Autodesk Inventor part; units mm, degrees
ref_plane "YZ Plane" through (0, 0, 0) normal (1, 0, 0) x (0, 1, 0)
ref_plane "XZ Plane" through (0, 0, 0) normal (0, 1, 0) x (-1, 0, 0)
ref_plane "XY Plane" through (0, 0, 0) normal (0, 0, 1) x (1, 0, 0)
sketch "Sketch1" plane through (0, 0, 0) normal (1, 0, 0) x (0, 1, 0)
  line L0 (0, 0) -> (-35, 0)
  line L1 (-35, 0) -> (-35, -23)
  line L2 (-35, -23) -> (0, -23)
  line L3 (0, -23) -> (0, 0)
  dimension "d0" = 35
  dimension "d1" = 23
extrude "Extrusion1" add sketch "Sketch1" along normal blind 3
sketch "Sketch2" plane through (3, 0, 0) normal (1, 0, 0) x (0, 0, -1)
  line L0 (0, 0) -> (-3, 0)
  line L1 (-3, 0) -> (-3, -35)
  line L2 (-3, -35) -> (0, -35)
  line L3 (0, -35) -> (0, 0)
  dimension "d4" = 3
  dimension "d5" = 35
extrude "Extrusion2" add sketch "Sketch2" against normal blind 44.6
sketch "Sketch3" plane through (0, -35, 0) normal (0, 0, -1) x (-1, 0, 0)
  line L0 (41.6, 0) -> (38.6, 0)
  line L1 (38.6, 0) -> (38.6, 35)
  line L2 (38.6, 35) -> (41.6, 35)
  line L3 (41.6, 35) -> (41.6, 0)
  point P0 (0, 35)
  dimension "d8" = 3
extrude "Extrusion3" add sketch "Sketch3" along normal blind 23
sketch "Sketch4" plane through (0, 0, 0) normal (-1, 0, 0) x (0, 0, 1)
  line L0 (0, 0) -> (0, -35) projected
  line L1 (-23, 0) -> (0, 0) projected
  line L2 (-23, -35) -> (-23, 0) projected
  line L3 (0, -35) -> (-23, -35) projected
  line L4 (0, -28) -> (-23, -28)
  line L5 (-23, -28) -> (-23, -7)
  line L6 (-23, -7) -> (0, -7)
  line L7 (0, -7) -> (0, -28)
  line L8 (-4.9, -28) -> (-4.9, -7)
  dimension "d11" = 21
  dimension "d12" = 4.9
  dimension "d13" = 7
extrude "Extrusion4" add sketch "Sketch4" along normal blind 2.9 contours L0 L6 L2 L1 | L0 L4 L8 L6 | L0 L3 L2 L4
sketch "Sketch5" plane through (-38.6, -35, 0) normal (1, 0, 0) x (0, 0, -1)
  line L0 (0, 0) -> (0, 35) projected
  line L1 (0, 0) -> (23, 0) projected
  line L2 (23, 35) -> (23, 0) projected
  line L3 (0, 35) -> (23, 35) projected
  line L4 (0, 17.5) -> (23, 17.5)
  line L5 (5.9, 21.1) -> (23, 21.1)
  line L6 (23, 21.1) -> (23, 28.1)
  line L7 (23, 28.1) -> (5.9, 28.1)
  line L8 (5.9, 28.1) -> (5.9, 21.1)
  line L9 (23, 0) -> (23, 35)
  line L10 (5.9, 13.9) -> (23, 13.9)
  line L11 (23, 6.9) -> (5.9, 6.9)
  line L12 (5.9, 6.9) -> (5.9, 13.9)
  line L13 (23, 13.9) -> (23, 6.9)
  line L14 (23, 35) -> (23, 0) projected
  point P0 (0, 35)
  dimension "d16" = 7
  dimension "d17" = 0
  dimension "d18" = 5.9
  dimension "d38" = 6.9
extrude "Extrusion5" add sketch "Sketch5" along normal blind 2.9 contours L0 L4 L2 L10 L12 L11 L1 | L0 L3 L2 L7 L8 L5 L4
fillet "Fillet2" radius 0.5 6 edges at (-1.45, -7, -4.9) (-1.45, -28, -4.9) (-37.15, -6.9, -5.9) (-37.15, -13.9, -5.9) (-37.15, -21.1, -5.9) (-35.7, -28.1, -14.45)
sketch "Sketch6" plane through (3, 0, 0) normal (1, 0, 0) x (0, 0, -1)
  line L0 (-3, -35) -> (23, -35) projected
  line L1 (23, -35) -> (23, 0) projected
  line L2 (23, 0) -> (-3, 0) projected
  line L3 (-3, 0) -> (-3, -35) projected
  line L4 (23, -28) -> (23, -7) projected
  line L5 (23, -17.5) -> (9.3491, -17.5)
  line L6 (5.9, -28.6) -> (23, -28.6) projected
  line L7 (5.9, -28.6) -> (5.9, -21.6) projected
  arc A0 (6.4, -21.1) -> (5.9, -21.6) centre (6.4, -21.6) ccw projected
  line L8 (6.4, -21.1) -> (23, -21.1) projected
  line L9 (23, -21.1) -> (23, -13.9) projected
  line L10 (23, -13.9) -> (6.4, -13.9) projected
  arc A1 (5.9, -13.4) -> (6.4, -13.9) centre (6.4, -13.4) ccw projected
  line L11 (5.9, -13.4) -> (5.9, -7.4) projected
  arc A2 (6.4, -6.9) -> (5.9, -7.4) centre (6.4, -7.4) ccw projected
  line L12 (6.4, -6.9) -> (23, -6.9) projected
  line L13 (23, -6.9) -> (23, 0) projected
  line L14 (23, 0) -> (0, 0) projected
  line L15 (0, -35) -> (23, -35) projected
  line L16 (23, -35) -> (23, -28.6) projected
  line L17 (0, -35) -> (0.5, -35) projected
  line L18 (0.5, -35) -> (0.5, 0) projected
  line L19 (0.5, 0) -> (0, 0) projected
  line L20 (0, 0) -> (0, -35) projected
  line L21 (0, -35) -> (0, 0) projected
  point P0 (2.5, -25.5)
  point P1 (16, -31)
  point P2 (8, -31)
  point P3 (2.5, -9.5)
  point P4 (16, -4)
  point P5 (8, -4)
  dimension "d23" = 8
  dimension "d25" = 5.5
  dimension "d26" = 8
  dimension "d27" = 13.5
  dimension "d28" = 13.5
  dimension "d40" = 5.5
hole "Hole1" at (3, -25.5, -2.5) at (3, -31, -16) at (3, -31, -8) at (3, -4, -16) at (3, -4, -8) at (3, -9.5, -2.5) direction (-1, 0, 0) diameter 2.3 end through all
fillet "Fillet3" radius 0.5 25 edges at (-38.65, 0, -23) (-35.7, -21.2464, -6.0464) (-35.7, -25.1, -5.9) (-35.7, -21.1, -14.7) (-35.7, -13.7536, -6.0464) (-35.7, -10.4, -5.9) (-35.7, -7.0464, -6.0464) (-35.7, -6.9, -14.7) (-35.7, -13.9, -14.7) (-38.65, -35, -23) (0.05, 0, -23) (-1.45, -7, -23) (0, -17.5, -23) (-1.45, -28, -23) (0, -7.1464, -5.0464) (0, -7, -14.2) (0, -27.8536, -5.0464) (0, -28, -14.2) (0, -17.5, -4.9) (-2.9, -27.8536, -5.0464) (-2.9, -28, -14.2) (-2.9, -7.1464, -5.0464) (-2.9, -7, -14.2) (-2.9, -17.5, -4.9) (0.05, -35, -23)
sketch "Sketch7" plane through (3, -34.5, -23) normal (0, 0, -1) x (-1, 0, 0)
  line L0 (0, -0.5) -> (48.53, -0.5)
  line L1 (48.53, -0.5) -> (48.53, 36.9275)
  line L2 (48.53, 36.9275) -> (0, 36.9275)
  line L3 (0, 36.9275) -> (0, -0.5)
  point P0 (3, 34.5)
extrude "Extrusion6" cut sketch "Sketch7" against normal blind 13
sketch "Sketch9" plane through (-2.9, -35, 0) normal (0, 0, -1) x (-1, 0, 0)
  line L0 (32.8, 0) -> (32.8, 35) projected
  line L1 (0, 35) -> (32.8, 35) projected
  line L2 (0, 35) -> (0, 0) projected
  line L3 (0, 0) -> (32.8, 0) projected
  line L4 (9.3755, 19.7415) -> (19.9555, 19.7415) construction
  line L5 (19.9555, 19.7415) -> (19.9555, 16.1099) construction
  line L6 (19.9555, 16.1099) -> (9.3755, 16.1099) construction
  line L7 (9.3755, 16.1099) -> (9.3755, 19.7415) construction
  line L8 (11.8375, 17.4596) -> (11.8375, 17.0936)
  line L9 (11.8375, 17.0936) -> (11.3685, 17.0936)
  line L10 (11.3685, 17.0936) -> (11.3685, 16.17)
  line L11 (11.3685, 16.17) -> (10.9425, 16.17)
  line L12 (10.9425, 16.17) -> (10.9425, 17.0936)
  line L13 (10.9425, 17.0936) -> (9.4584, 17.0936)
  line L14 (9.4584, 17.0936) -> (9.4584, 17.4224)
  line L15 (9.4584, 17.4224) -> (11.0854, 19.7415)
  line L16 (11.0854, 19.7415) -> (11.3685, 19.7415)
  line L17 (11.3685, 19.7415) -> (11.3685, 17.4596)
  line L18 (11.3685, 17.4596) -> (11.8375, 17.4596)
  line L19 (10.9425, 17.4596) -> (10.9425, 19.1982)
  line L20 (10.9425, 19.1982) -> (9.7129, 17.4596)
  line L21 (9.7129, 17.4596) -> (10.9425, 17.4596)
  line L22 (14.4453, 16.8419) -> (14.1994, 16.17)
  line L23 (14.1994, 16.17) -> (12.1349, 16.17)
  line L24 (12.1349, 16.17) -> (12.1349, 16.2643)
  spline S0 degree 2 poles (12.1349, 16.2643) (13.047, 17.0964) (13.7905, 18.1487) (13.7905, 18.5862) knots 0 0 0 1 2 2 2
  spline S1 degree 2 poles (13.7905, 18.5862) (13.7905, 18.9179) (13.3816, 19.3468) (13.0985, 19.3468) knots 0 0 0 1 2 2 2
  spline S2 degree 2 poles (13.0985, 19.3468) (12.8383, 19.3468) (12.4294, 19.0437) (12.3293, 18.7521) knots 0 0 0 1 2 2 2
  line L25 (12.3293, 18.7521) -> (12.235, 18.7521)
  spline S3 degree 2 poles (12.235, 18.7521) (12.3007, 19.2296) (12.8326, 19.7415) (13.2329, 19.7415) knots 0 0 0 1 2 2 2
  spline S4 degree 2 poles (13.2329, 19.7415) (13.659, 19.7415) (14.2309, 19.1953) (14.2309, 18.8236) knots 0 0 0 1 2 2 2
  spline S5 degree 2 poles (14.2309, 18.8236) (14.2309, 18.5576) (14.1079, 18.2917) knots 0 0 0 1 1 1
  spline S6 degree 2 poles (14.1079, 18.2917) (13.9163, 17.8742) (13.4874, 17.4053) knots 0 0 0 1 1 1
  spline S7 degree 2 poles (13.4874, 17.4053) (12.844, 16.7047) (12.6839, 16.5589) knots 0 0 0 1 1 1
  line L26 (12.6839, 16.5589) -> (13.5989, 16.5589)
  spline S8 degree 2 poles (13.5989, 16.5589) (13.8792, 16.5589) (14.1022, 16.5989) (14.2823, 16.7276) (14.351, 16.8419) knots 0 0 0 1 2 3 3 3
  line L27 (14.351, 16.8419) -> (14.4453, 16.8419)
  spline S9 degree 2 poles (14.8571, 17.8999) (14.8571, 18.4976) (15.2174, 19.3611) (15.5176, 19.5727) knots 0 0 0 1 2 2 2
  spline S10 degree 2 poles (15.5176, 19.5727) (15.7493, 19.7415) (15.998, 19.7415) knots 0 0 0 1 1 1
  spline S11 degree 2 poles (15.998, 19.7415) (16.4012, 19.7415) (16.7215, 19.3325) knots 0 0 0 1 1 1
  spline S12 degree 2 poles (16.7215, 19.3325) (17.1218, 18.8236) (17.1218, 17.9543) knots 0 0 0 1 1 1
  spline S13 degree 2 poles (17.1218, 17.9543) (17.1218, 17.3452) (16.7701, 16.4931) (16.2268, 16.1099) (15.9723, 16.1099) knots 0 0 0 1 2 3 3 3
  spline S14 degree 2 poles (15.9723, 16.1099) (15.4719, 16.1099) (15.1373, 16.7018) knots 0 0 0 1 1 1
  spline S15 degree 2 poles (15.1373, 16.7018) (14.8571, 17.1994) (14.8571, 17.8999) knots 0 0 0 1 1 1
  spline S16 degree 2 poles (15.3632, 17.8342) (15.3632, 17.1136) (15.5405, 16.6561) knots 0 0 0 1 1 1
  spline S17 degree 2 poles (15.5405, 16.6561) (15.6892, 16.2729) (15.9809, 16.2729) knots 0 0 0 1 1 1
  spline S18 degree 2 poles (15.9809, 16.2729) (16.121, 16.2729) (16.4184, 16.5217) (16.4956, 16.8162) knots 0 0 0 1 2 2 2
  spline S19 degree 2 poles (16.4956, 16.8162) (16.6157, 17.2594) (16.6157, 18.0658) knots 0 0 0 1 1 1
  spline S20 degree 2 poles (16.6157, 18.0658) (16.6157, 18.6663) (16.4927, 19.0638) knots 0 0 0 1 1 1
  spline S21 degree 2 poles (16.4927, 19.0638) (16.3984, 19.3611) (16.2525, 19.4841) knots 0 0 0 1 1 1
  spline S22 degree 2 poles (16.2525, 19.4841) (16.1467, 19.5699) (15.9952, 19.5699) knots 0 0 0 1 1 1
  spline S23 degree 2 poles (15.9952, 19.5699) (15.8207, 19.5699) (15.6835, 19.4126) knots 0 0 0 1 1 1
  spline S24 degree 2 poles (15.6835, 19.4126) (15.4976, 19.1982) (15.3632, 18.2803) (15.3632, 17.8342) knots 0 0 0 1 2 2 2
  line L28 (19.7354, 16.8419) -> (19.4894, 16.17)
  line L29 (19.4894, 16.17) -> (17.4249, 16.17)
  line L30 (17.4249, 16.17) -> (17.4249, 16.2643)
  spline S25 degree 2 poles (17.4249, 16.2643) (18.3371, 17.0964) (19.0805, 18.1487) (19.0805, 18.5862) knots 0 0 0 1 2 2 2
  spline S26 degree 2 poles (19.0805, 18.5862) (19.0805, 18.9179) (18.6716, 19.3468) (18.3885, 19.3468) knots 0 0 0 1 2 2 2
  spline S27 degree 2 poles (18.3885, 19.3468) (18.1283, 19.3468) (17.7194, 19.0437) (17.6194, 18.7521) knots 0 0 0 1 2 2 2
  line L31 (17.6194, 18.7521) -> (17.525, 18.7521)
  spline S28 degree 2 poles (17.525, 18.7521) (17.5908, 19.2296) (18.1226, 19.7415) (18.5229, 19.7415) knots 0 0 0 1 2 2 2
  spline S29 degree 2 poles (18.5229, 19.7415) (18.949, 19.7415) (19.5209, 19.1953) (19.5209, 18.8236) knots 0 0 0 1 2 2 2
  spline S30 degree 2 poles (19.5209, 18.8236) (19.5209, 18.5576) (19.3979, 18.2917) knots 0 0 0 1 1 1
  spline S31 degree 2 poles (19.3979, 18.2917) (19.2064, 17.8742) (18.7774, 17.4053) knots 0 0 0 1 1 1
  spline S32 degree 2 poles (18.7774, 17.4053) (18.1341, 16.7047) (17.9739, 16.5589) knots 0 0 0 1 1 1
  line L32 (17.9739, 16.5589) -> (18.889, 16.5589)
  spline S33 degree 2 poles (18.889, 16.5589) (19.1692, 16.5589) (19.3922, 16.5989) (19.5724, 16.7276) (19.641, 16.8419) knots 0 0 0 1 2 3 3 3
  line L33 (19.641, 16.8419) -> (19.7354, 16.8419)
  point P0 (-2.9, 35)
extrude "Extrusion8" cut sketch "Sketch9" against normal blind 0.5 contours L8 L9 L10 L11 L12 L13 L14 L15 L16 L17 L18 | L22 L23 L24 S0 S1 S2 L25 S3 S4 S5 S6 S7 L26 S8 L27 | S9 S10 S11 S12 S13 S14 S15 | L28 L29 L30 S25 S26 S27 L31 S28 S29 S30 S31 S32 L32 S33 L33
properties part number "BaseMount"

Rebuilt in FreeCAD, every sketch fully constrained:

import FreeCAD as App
import Part
import Sketcher

V = App.Vector


def edges_at(feature, points):
    """Names of the edges that pass closest to the given points."""
    edges = feature.Shape.Edges
    near = lambda p: min(range(len(edges)), key=lambda i: edges[i].distToShape(Part.Vertex(*p))[0])
    return sorted({f"Edge{near(p) + 1}" for p in points})


def add_polygon(sketch, points):
    """Adds a closed chain of lines whose ends are joined by coincident constraints."""
    first, n = sketch.GeometryCount, len(points)
    for a, b in zip(points, points[1:] + points[:1]):
        sketch.addGeometry(Part.LineSegment(App.Vector(*a, 0), App.Vector(*b, 0)), False)
    for i in range(n):
        sketch.addConstraint(Sketcher.Constraint("Coincident", first + i, 2, first + (i + 1) % n, 1))

doc = App.newDocument("Part")
body = doc.addObject("PartDesign::Body", "Body")

# Sketch on YZ plane
sketch1 = doc.addObject("Sketcher::SketchObject", "Sketch")
body.addObject(sketch1)
sketch1.AttachmentSupport = (doc.YZ_Plane, [""])
sketch1.MapMode = "FlatFace"
add_polygon(sketch1, [(0, -23), (0, 0), (-35, 0), (-35, -23)])  # lines 0-3
sketch1.addConstraint([
    Sketcher.Constraint("Vertical", 0),
    Sketcher.Constraint("Horizontal", 1),
    Sketcher.Constraint("Vertical", 2),
    Sketcher.Constraint("Horizontal", 3),
    Sketcher.Constraint("Coincident", 0, 2, -1, 1),
    Sketcher.Constraint("DistanceX", 1, 2, 1, 1, 35.0),
    Sketcher.Constraint("DistanceY", 0, 1, 0, 2, 23.0),
])
pad1 = doc.addObject("PartDesign::Pad", "Pad")
body.addObject(pad1)
pad1.Profile = sketch1
pad1.Length = 3

# Sketch on YZ plane
sketch2 = doc.addObject("Sketcher::SketchObject", "Sketch001")
body.addObject(sketch2)
sketch2.AttachmentSupport = (doc.YZ_Plane, [""])
sketch2.MapMode = "FlatFace"
sketch2.AttachmentOffset = App.Placement(V(0, 0, 3), App.Rotation())
add_polygon(sketch2, [(-35, 0), (0, 0), (0, 3), (-35, 3)])  # lines 0-3
sketch2.addConstraint([
    Sketcher.Constraint("Horizontal", 0),
    Sketcher.Constraint("Vertical", 1),
    Sketcher.Constraint("Horizontal", 2),
    Sketcher.Constraint("Vertical", 3),
    Sketcher.Constraint("Coincident", 0, 2, -1, 1),
    Sketcher.Constraint("DistanceX", 0, 1, 0, 2, 35.0),
    Sketcher.Constraint("DistanceY", 1, 1, 1, 2, 3.0),
])
pad2 = doc.addObject("PartDesign::Pad", "Pad001")
body.addObject(pad2)
pad2.Profile = sketch2
pad2.Length = 44.6
pad2.Reversed = True

# Sketch on XY plane
sketch3 = doc.addObject("Sketcher::SketchObject", "Sketch002")
body.addObject(sketch3)
sketch3.AttachmentSupport = (doc.XY_Plane, [""])
sketch3.MapMode = "FlatFace"
add_polygon(sketch3, [(-38.6, -35), (-41.6, -35), (-41.6, 0), (-38.6, 0)])  # lines 0-3
sketch3.addConstraint([
    Sketcher.Constraint("Horizontal", 0),
    Sketcher.Constraint("Vertical", 1),
    Sketcher.Constraint("Horizontal", 2),
    Sketcher.Constraint("Vertical", 3),
    Sketcher.Constraint("PointOnObject", 1, 2, -1),
    Sketcher.Constraint("DistanceX", 0, 2, 0, 1, 3.0),
    Sketcher.Constraint("DistanceY", 1, 1, 1, 2, 35.0),
    Sketcher.Constraint("DistanceX", 0, 2, -1, 1, 41.6),
])
pad3 = doc.addObject("PartDesign::Pad", "Pad002")
body.addObject(pad3)
pad3.Profile = sketch3
pad3.Length = 23
pad3.Reversed = True

# Sketch on YZ plane
sketch4 = doc.addObject("Sketcher::SketchObject", "Sketch003")
body.addObject(sketch4)
sketch4.AttachmentSupport = (doc.YZ_Plane, [""])
sketch4.MapMode = "FlatFace"
add_polygon(sketch4, [(0, 0), (0, -23), (-7, -23), (-7, -5), (-28, -5), (-28, -23), (-35, -23), (-35, 0)])  # lines 0-7
sketch4.addConstraint([
    Sketcher.Constraint("Vertical", 0),
    Sketcher.Constraint("Horizontal", 1),
    Sketcher.Constraint("Vertical", 2),
    Sketcher.Constraint("Horizontal", 3),
    Sketcher.Constraint("Vertical", 4),
    Sketcher.Constraint("Horizontal", 5),
    Sketcher.Constraint("Vertical", 6),
    Sketcher.Constraint("Horizontal", 7),
    Sketcher.Constraint("Coincident", 7, 2, -1, 1),
    Sketcher.Constraint("Horizontal", 1, 2, 4, 2),
    Sketcher.Constraint("Equal", 1, 5),
    Sketcher.Constraint("DistanceX", 1, 2, 1, 1, 7.0),
    Sketcher.Constraint("DistanceX", 3, 2, 3, 1, 21.0),
    Sketcher.Constraint("DistanceY", 2, 2, -1, 1, 4.9),
    Sketcher.Constraint("DistanceY", 0, 2, 0, 1, 23.0),
])
pad4 = doc.addObject("PartDesign::Pad", "Pad003")
body.addObject(pad4)
pad4.Profile = sketch4
pad4.Length = 2.9
pad4.Reversed = True

# Sketch on YZ plane
sketch5 = doc.addObject("Sketcher::SketchObject", "Sketch004")
body.addObject(sketch5)
sketch5.AttachmentSupport = (doc.YZ_Plane, [""])
sketch5.MapMode = "FlatFace"
sketch5.AttachmentOffset = App.Placement(V(0, 0, -38.6), App.Rotation())
add_polygon(sketch5, [(-35, 0), (-35, -23), (-28, -23), (-28, -6), (-21, -6), (-21, -23), (-14, -23), (-14, -6), (-7, -6), (-7, -23), (0, -23), (0, 0)])  # lines 0-11
sketch5.addConstraint([
    Sketcher.Constraint("Vertical", 0),
    Sketcher.Constraint("Horizontal", 1),
    Sketcher.Constraint("Vertical", 2),
    Sketcher.Constraint("Horizontal", 3),
    Sketcher.Constraint("Vertical", 4),
    Sketcher.Constraint("Horizontal", 5),
    Sketcher.Constraint("Vertical", 6),
    Sketcher.Constraint("Horizontal", 7),
    Sketcher.Constraint("Vertical", 8),
    Sketcher.Constraint("Horizontal", 9),
    Sketcher.Constraint("Vertical", 10),
    Sketcher.Constraint("Horizontal", 11),
    Sketcher.Constraint("Coincident", 10, 2, -1, 1),
    Sketcher.Constraint("Horizontal", 1, 2, 4, 2),
    Sketcher.Constraint("Horizontal", 3, 2, 6, 2),
    Sketcher.Constraint("Horizontal", 5, 2, 8, 2),
    Sketcher.Constraint("Equal", 3, 7),
    Sketcher.Constraint("Equal", 1, 9),
    Sketcher.Constraint("DistanceX", 3, 1, 3, 2, 7.0),
    Sketcher.Constraint("DistanceX", 1, 1, 1, 2, 6.9),
    Sketcher.Constraint("DistanceY", 2, 2, -1, 1, 5.9),
    Sketcher.Constraint("DistanceX", 11, 2, 11, 1, 35.0),
    Sketcher.Constraint("DistanceY", 0, 2, 0, 1, 23.0),
])
pad5 = doc.addObject("PartDesign::Pad", "Pad004")
body.addObject(pad5)
pad5.Profile = sketch5
pad5.Length = 2.9
doc.recompute()

fillet = doc.addObject("PartDesign::Fillet", "Fillet")
body.addObject(fillet)
fillet.Base = (pad5, edges_at(pad5, [
    (-1.45, -7, -4.9),
    (-1.45, -28, -4.9),
    (-37.15, -6.9, -5.9),
    (-37.15, -13.9, -5.9),
    (-37.15, -21.1, -5.9),
    (-35.7, -28.1, -14.45),
]))
fillet.Radius = 0.5

# Sketch on YZ plane
sketch6 = doc.addObject("Sketcher::SketchObject", "Sketch005")
body.addObject(sketch6)
sketch6.AttachmentSupport = (doc.YZ_Plane, [""])
sketch6.MapMode = "FlatFace"
sketch6.AttachmentOffset = App.Placement(V(0, 0, 3), App.Rotation())
sketch6.addGeometry([
    Part.Circle(V(-25.5, -2.5, 0), V(0, 0, 1), 1.1),  # 0
    Part.Circle(V(-31, -16, 0), V(0, 0, 1), 1.1),  # 1
    Part.Circle(V(-31, -8, 0), V(0, 0, 1), 1.1),  # 2
    Part.Circle(V(-4, -16, 0), V(0, 0, 1), 1.1),  # 3
    Part.Circle(V(-4, -8, 0), V(0, 0, 1), 1.1),  # 4
    Part.Circle(V(-9.5, -2.5, 0), V(0, 0, 1), 1.1),  # 5
], False)
sketch6.addConstraint([
    Sketcher.Constraint("Equal", 0, 1),
    Sketcher.Constraint("Equal", 1, 2),
    Sketcher.Constraint("Equal", 2, 3),
    Sketcher.Constraint("Equal", 3, 4),
    Sketcher.Constraint("Equal", 4, 5),
    Sketcher.Constraint("Horizontal", 1, 3, 3, 3),
    Sketcher.Constraint("Horizontal", 2, 3, 4, 3),
    Sketcher.Constraint("Horizontal", 0, 3, 5, 3),
    Sketcher.Constraint("Vertical", 1, 3, 2, 3),
    Sketcher.Constraint("Vertical", 3, 3, 4, 3),
    Sketcher.Constraint("Diameter", 0, 2.3),
    Sketcher.Constraint("DistanceX", 1, 3, -1, 1, 31.0),
    Sketcher.Constraint("DistanceY", 1, 3, -1, 1, 16.0),
    Sketcher.Constraint("DistanceY", 2, 3, -1, 1, 8.0),
    Sketcher.Constraint("DistanceX", 3, 3, -1, 1, 4.0),
    Sketcher.Constraint("DistanceX", 0, 3, 5, 3, 16.0),
    Sketcher.Constraint("DistanceX", 0, 3, -1, 1, 25.5),
    Sketcher.Constraint("DistanceY", 0, 3, -1, 1, 2.5),
])
doc.recompute()
hole = doc.addObject("PartDesign::Hole", "Hole")
body.addObject(hole)
hole.Profile = sketch6
hole.ThreadType = "None"
hole.Diameter = 2.3
hole.DepthType = "ThroughAll"
doc.recompute()

fillet2 = doc.addObject("PartDesign::Fillet", "Fillet001")
body.addObject(fillet2)
fillet2.Base = (hole, edges_at(hole, [
    (-38.65, 0, -23),
    (-35.7, -21.246, -6.046),
    (-35.7, -25.1, -5.9),
    (-35.7, -21.1, -14.7),
    (-35.7, -13.754, -6.046),
    (-35.7, -10.4, -5.9),
    (-35.7, -7.046, -6.046),
    (-35.7, -6.9, -14.7),
    (-35.7, -13.9, -14.7),
    (-38.65, -35, -23),
    (0.05, 0, -23),
    (-1.45, -7, -23),
    (0, -17.5, -23),
    (-1.45, -28, -23),
    (0, -7.146, -5.046),
    (0, -7, -14.2),
    (0, -27.854, -5.046),
    (0, -28, -14.2),
    (0, -17.5, -4.9),
    (-2.9, -27.854, -5.046),
    (-2.9, -28, -14.2),
    (-2.9, -7.146, -5.046),
    (-2.9, -7, -14.2),
    (-2.9, -17.5, -4.9),
    (0.05, -35, -23),
]))
fillet2.Radius = 0.5

# Sketch on XY plane
sketch7 = doc.addObject("Sketcher::SketchObject", "Sketch006")
body.addObject(sketch7)
sketch7.AttachmentSupport = (doc.XY_Plane, [""])
sketch7.MapMode = "FlatFace"
sketch7.AttachmentOffset = App.Placement(V(0, 0, -23), App.Rotation())
add_polygon(sketch7, [(3, 2), (3, -35), (-46, -35), (-46, 2)])  # lines 0-3
sketch7.addConstraint([
    Sketcher.Constraint("Vertical", 0),
    Sketcher.Constraint("Horizontal", 1),
    Sketcher.Constraint("Vertical", 2),
    Sketcher.Constraint("Horizontal", 3),
    Sketcher.Constraint("DistanceX", -1, 1, 0, 2, 3.0),
    Sketcher.Constraint("DistanceY", 0, 2, -1, 1, 35.0),
    Sketcher.Constraint("DistanceX", 1, 2, 1, 1, 48.53),
    Sketcher.Constraint("DistanceY", 0, 2, 0, 1, 37.4275),
])
pocket1 = doc.addObject("PartDesign::Pocket", "Pocket")
body.addObject(pocket1)
pocket1.Profile = sketch7
pocket1.Length = 13
pocket1.Reversed = True

# Sketch on XY plane
sketch8 = doc.addObject("Sketcher::SketchObject", "Sketch007")
body.addObject(sketch8)
sketch8.AttachmentSupport = (doc.XY_Plane, [""])
sketch8.MapMode = "FlatFace"
add_polygon(sketch8, [(-14.7375, -17.9064), (-14.7375, -17.5404), (-14.2685, -17.5404), (-14.2685, -15.2585), (-13.9854, -15.2585), (-12.3584, -17.5776), (-12.3584, -17.9064), (-13.8425, -17.9064), (-13.8425, -18.83), (-14.2685, -18.83), (-14.2685, -17.9064)])  # lines 0-10
add_polygon(sketch8, [(-13.8425, -15.8018), (-13.8425, -17.5404), (-12.6129, -17.5404)])  # lines 11-13
sketch8.addGeometry(Part.LineSegment(V(-17.0994, -18.83, 0), V(-17.3453, -18.1581, 0)), False)  # 14
sketch8.addGeometry(Part.LineSegment(V(-17.3453, -18.1581, 0), V(-17.251, -18.1581, 0)), False)  # 15
sketch8.addGeometry(Part.BSplineCurve([V(-16.4989, -18.4411, 0), V(-16.7792, -18.4411, 0), V(-17.0022, -18.4011, 0), V(-17.1823, -18.2724, 0), V(-17.251, -18.1581, 0)], [3, 1, 1, 3], [0, 1, 2, 3], False, 2, [1, 1, 1, 1, 1], False), False)  # 16
sketch8.addGeometry(Part.LineSegment(V(-16.4989, -18.4411, 0), V(-15.5839, -18.4411, 0)), False)  # 17
sketch8.addGeometry(Part.BSplineCurve([V(-16.3874, -17.5947, 0), V(-15.744, -18.2953, 0), V(-15.5839, -18.4411, 0)], [3, 3], [0, 1], False, 2, [1, 1, 1], False), False)  # 18
sketch8.addGeometry(Part.BSplineCurve([V(-17.0079, -16.7083, 0), V(-16.8163, -17.1258, 0), V(-16.3874, -17.5947, 0)], [3, 3], [0, 1], False, 2, [1, 1, 1], False), False)  # 19
sketch8.addGeometry(Part.BSplineCurve([V(-17.1309, -16.1764, 0), V(-17.1309, -16.4424, 0), V(-17.0079, -16.7083, 0)], [3, 3], [0, 1], False, 2, [1, 1, 1], False), False)  # 20
sketch8.addGeometry(Part.BSplineCurve([V(-16.1329, -15.2585, 0), V(-16.559, -15.2585, 0), V(-17.1309, -15.8047, 0), V(-17.1309, -16.1764, 0)], [3, 1, 3], [0, 1, 2], False, 2, [1, 1, 1, 1], False), False)  # 21
sketch8.addGeometry(Part.BSplineCurve([V(-15.135, -16.2479, 0), V(-15.2007, -15.7704, 0), V(-15.7326, -15.2585, 0), V(-16.1329, -15.2585, 0)], [3, 1, 3], [0, 1, 2], False, 2, [1, 1, 1, 1], False), False)  # 22
sketch8.addGeometry(Part.LineSegment(V(-15.135, -16.2479, 0), V(-15.2293, -16.2479, 0)), False)  # 23
sketch8.addGeometry(Part.BSplineCurve([V(-15.9985, -15.6532, 0), V(-15.7383, -15.6532, 0), V(-15.3294, -15.9563, 0), V(-15.2293, -16.2479, 0)], [3, 1, 3], [0, 1, 2], False, 2, [1, 1, 1, 1], False), False)  # 24
sketch8.addGeometry(Part.BSplineCurve([V(-16.6905, -16.4138, 0), V(-16.6905, -16.0821, 0), V(-16.2816, -15.6532, 0), V(-15.9985, -15.6532, 0)], [3, 1, 3], [0, 1, 2], False, 2, [1, 1, 1, 1], False), False)  # 25
sketch8.addGeometry(Part.BSplineCurve([V(-15.0349, -18.7357, 0), V(-15.947, -17.9036, 0), V(-16.6905, -16.8513, 0), V(-16.6905, -16.4138, 0)], [3, 1, 3], [0, 1, 2], False, 2, [1, 1, 1, 1], False), False)  # 26
sketch8.addGeometry(Part.LineSegment(V(-15.0349, -18.7357, 0), V(-15.0349, -18.83, 0)), False)  # 27
sketch8.addGeometry(Part.LineSegment(V(-15.0349, -18.83, 0), V(-17.0994, -18.83, 0)), False)  # 28
sketch8.addGeometry(Part.BSplineCurve([V(-17.7571, -17.1001, 0), V(-17.7571, -16.5024, 0), V(-18.1174, -15.6389, 0), V(-18.4176, -15.4273, 0)], [3, 1, 3], [0, 1, 2], False, 2, [1, 1, 1, 1], False), False)  # 29
sketch8.addGeometry(Part.BSplineCurve([V(-18.0373, -18.2982, 0), V(-17.7571, -17.8006, 0), V(-17.7571, -17.1001, 0)], [3, 3], [0, 1], False, 2, [1, 1, 1], False), False)  # 30
sketch8.addGeometry(Part.BSplineCurve([V(-18.8723, -18.8901, 0), V(-18.3719, -18.8901, 0), V(-18.0373, -18.2982, 0)], [3, 3], [0, 1], False, 2, [1, 1, 1], False), False)  # 31
sketch8.addGeometry(Part.BSplineCurve([V(-20.0218, -17.0457, 0), V(-20.0218, -17.6548, 0), V(-19.6701, -18.5069, 0), V(-19.1268, -18.8901, 0), V(-18.8723, -18.8901, 0)], [3, 1, 1, 3], [0, 1, 2, 3], False, 2, [1, 1, 1, 1, 1], False), False)  # 32
sketch8.addGeometry(Part.BSplineCurve([V(-19.6215, -15.6675, 0), V(-20.0218, -16.1764, 0), V(-20.0218, -17.0457, 0)], [3, 3], [0, 1], False, 2, [1, 1, 1], False), False)  # 33
sketch8.addGeometry(Part.BSplineCurve([V(-18.898, -15.2585, 0), V(-19.3012, -15.2585, 0), V(-19.6215, -15.6675, 0)], [3, 3], [0, 1], False, 2, [1, 1, 1], False), False)  # 34
sketch8.addGeometry(Part.BSplineCurve([V(-18.4176, -15.4273, 0), V(-18.6493, -15.2585, 0), V(-18.898, -15.2585, 0)], [3, 3], [0, 1], False, 2, [1, 1, 1], False), False)  # 35
sketch8.addGeometry(Part.BSplineCurve([V(-18.2632, -17.1658, 0), V(-18.2632, -17.8864, 0), V(-18.4405, -18.3439, 0)], [3, 3], [0, 1], False, 2, [1, 1, 1], False), False)  # 36
sketch8.addGeometry(Part.BSplineCurve([V(-18.5835, -15.5874, 0), V(-18.3976, -15.8018, 0), V(-18.2632, -16.7197, 0), V(-18.2632, -17.1658, 0)], [3, 1, 3], [0, 1, 2], False, 2, [1, 1, 1, 1], False), False)  # 37
sketch8.addGeometry(Part.BSplineCurve([V(-18.8952, -15.4301, 0), V(-18.7207, -15.4301, 0), V(-18.5835, -15.5874, 0)], [3, 3], [0, 1], False, 2, [1, 1, 1], False), False)  # 38
sketch8.addGeometry(Part.BSplineCurve([V(-19.1525, -15.5159, 0), V(-19.0467, -15.4301, 0), V(-18.8952, -15.4301, 0)], [3, 3], [0, 1], False, 2, [1, 1, 1], False), False)  # 39
sketch8.addGeometry(Part.BSplineCurve([V(-19.3927, -15.9362, 0), V(-19.2984, -15.6389, 0), V(-19.1525, -15.5159, 0)], [3, 3], [0, 1], False, 2, [1, 1, 1], False), False)  # 40
sketch8.addGeometry(Part.BSplineCurve([V(-19.5157, -16.9342, 0), V(-19.5157, -16.3337, 0), V(-19.3927, -15.9362, 0)], [3, 3], [0, 1], False, 2, [1, 1, 1], False), False)  # 41
sketch8.addGeometry(Part.BSplineCurve([V(-19.3956, -18.1838, 0), V(-19.5157, -17.7406, 0), V(-19.5157, -16.9342, 0)], [3, 3], [0, 1], False, 2, [1, 1, 1], False), False)  # 42
sketch8.addGeometry(Part.BSplineCurve([V(-18.8809, -18.7271, 0), V(-19.021, -18.7271, 0), V(-19.3184, -18.4783, 0), V(-19.3956, -18.1838, 0)], [3, 1, 3], [0, 1, 2], False, 2, [1, 1, 1, 1], False), False)  # 43
sketch8.addGeometry(Part.BSplineCurve([V(-18.4405, -18.3439, 0), V(-18.5892, -18.7271, 0), V(-18.8809, -18.7271, 0)], [3, 3], [0, 1], False, 2, [1, 1, 1], False), False)  # 44
sketch8.addGeometry(Part.LineSegment(V(-22.3894, -18.83, 0), V(-22.6354, -18.1581, 0)), False)  # 45
sketch8.addGeometry(Part.LineSegment(V(-22.6354, -18.1581, 0), V(-22.541, -18.1581, 0)), False)  # 46
sketch8.addGeometry(Part.BSplineCurve([V(-21.789, -18.4411, 0), V(-22.0692, -18.4411, 0), V(-22.2922, -18.4011, 0), V(-22.4724, -18.2724, 0), V(-22.541, -18.1581, 0)], [3, 1, 1, 3], [0, 1, 2, 3], False, 2, [1, 1, 1, 1, 1], False), False)  # 47
sketch8.addGeometry(Part.LineSegment(V(-21.789, -18.4411, 0), V(-20.8739, -18.4411, 0)), False)  # 48
sketch8.addGeometry(Part.BSplineCurve([V(-21.6774, -17.5947, 0), V(-21.0341, -18.2953, 0), V(-20.8739, -18.4411, 0)], [3, 3], [0, 1], False, 2, [1, 1, 1], False), False)  # 49
sketch8.addGeometry(Part.BSplineCurve([V(-22.2979, -16.7083, 0), V(-22.1064, -17.1258, 0), V(-21.6774, -17.5947, 0)], [3, 3], [0, 1], False, 2, [1, 1, 1], False), False)  # 50
sketch8.addGeometry(Part.BSplineCurve([V(-22.4209, -16.1764, 0), V(-22.4209, -16.4424, 0), V(-22.2979, -16.7083, 0)], [3, 3], [0, 1], False, 2, [1, 1, 1], False), False)  # 51
sketch8.addGeometry(Part.BSplineCurve([V(-21.4229, -15.2585, 0), V(-21.849, -15.2585, 0), V(-22.4209, -15.8047, 0), V(-22.4209, -16.1764, 0)], [3, 1, 3], [0, 1, 2], False, 2, [1, 1, 1, 1], False), False)  # 52
sketch8.addGeometry(Part.BSplineCurve([V(-20.425, -16.2479, 0), V(-20.4908, -15.7704, 0), V(-21.0226, -15.2585, 0), V(-21.4229, -15.2585, 0)], [3, 1, 3], [0, 1, 2], False, 2, [1, 1, 1, 1], False), False)  # 53
sketch8.addGeometry(Part.LineSegment(V(-20.425, -16.2479, 0), V(-20.5194, -16.2479, 0)), False)  # 54
sketch8.addGeometry(Part.BSplineCurve([V(-21.2885, -15.6532, 0), V(-21.0283, -15.6532, 0), V(-20.6194, -15.9563, 0), V(-20.5194, -16.2479, 0)], [3, 1, 3], [0, 1, 2], False, 2, [1, 1, 1, 1], False), False)  # 55
sketch8.addGeometry(Part.BSplineCurve([V(-21.9805, -16.4138, 0), V(-21.9805, -16.0821, 0), V(-21.5716, -15.6532, 0), V(-21.2885, -15.6532, 0)], [3, 1, 3], [0, 1, 2], False, 2, [1, 1, 1, 1], False), False)  # 56
sketch8.addGeometry(Part.BSplineCurve([V(-20.3249, -18.7357, 0), V(-21.2371, -17.9036, 0), V(-21.9805, -16.8513, 0), V(-21.9805, -16.4138, 0)], [3, 1, 3], [0, 1, 2], False, 2, [1, 1, 1, 1], False), False)  # 57
sketch8.addGeometry(Part.LineSegment(V(-20.3249, -18.7357, 0), V(-20.3249, -18.83, 0)), False)  # 58
sketch8.addGeometry(Part.LineSegment(V(-20.3249, -18.83, 0), V(-22.3894, -18.83, 0)), False)  # 59
sketch8.addConstraint([
    Sketcher.Constraint("Block", 16),
    Sketcher.Constraint("Block", 18),
    Sketcher.Constraint("Block", 19),
    Sketcher.Constraint("Block", 20),
    Sketcher.Constraint("Block", 21),
    Sketcher.Constraint("Block", 22),
    Sketcher.Constraint("Block", 24),
    Sketcher.Constraint("Block", 25),
    Sketcher.Constraint("Block", 26),
    Sketcher.Constraint("Block", 29),
    Sketcher.Constraint("Block", 30),
    Sketcher.Constraint("Block", 31),
    Sketcher.Constraint("Block", 32),
    Sketcher.Constraint("Block", 33),
    Sketcher.Constraint("Block", 34),
    Sketcher.Constraint("Block", 35),
    Sketcher.Constraint("Block", 36),
    Sketcher.Constraint("Block", 37),
    Sketcher.Constraint("Block", 38),
    Sketcher.Constraint("Block", 39),
    Sketcher.Constraint("Block", 40),
    Sketcher.Constraint("Block", 41),
    Sketcher.Constraint("Block", 42),
    Sketcher.Constraint("Block", 43),
    Sketcher.Constraint("Block", 44),
    Sketcher.Constraint("Block", 47),
    Sketcher.Constraint("Block", 49),
    Sketcher.Constraint("Block", 50),
    Sketcher.Constraint("Block", 51),
    Sketcher.Constraint("Block", 52),
    Sketcher.Constraint("Block", 53),
    Sketcher.Constraint("Block", 55),
    Sketcher.Constraint("Block", 56),
    Sketcher.Constraint("Block", 57),
    Sketcher.Constraint("Coincident", 14, 2, 15, 1),
    Sketcher.Constraint("Coincident", 15, 2, 16, 2),
    Sketcher.Constraint("Coincident", 16, 1, 17, 1),
    Sketcher.Constraint("Coincident", 17, 2, 18, 2),
    Sketcher.Constraint("Coincident", 22, 1, 23, 1),
    Sketcher.Constraint("Coincident", 23, 2, 24, 2),
    Sketcher.Constraint("Coincident", 26, 1, 27, 1),
    Sketcher.Constraint("Coincident", 27, 2, 28, 1),
    Sketcher.Constraint("Coincident", 28, 2, 14, 1),
    Sketcher.Constraint("Coincident", 45, 2, 46, 1),
    Sketcher.Constraint("Coincident", 46, 2, 47, 2),
    Sketcher.Constraint("Coincident", 47, 1, 48, 1),
    Sketcher.Constraint("Coincident", 48, 2, 49, 2),
    Sketcher.Constraint("Coincident", 53, 1, 54, 1),
    Sketcher.Constraint("Coincident", 54, 2, 55, 2),
    Sketcher.Constraint("Coincident", 57, 1, 58, 1),
    Sketcher.Constraint("Coincident", 58, 2, 59, 1),
    Sketcher.Constraint("Coincident", 59, 2, 45, 1),
    Sketcher.Constraint("Vertical", 0),
    Sketcher.Constraint("Horizontal", 1),
    Sketcher.Constraint("Vertical", 2),
    Sketcher.Constraint("Horizontal", 3),
    Sketcher.Constraint("Vertical", 5),
    Sketcher.Constraint("Horizontal", 6),
    Sketcher.Constraint("Vertical", 7),
    Sketcher.Constraint("Horizontal", 8),
    Sketcher.Constraint("Vertical", 9),
    Sketcher.Constraint("Horizontal", 10),
    Sketcher.Constraint("Vertical", 11),
    Sketcher.Constraint("Horizontal", 12),
    Sketcher.Constraint("Horizontal", 15),
    Sketcher.Constraint("Vertical", 27),
    Sketcher.Constraint("Horizontal", 28),
    Sketcher.Constraint("Horizontal", 46),
    Sketcher.Constraint("Vertical", 58),
    Sketcher.Constraint("Horizontal", 59),
    Sketcher.Constraint("DistanceX", 1, 1, 1, 2, 0.469),
    Sketcher.Constraint("DistanceX", 3, 1, 3, 2, 0.283),
    Sketcher.Constraint("DistanceX", 6, 2, 6, 1, 1.484),
    Sketcher.Constraint("DistanceX", 8, 2, 8, 1, 0.426),
    Sketcher.Constraint("DistanceX", 10, 2, 10, 1, 0.469),
    Sketcher.Constraint("DistanceY", 0, 1, 0, 2, 0.366),
    Sketcher.Constraint("DistanceY", 2, 1, 2, 2, 2.282),
    Sketcher.Constraint("DistanceY", 7, 2, -1, 1, 18.83),
    Sketcher.Constraint("DistanceY", 27, 2, -1, 1, 18.83),
    Sketcher.Constraint("DistanceY", 58, 2, -1, 1, 18.83),
    Sketcher.Constraint("DistanceX", 45, 2, 14, 2, 5.29),
    Sketcher.Constraint("DistanceX", 59, 2, 54, 2, 1.87),
    Sketcher.Constraint("Distance", 4, 2.833),
    Sketcher.Constraint("DistanceX", 12, 1, 12, 2, 1.2296),
    Sketcher.Constraint("DistanceX", 15, 1, 15, 2, 0.0943),
    Sketcher.Constraint("DistanceX", 28, 2, 28, 1, 2.0645),
    Sketcher.Constraint("DistanceY", 5, 2, 5, 1, 0.3288),
    Sketcher.Constraint("DistanceY", 7, 2, 7, 1, 0.9236),
    Sketcher.Constraint("DistanceY", 11, 2, 11, 1, 1.7386),
    Sketcher.Constraint("DistanceX", 12, 2, -1, 1, 12.613),
    Sketcher.Constraint("DistanceY", 6, 2, 11, 2, 0.366),
    Sketcher.Constraint("DistanceX", 1, 2, 11, 2, 0.426),
])
pocket2 = doc.addObject("PartDesign::Pocket", "Pocket001")
body.addObject(pocket2)
pocket2.Profile = sketch8
pocket2.Length = 0.5
pocket2.Reversed = True

doc.recompute()
